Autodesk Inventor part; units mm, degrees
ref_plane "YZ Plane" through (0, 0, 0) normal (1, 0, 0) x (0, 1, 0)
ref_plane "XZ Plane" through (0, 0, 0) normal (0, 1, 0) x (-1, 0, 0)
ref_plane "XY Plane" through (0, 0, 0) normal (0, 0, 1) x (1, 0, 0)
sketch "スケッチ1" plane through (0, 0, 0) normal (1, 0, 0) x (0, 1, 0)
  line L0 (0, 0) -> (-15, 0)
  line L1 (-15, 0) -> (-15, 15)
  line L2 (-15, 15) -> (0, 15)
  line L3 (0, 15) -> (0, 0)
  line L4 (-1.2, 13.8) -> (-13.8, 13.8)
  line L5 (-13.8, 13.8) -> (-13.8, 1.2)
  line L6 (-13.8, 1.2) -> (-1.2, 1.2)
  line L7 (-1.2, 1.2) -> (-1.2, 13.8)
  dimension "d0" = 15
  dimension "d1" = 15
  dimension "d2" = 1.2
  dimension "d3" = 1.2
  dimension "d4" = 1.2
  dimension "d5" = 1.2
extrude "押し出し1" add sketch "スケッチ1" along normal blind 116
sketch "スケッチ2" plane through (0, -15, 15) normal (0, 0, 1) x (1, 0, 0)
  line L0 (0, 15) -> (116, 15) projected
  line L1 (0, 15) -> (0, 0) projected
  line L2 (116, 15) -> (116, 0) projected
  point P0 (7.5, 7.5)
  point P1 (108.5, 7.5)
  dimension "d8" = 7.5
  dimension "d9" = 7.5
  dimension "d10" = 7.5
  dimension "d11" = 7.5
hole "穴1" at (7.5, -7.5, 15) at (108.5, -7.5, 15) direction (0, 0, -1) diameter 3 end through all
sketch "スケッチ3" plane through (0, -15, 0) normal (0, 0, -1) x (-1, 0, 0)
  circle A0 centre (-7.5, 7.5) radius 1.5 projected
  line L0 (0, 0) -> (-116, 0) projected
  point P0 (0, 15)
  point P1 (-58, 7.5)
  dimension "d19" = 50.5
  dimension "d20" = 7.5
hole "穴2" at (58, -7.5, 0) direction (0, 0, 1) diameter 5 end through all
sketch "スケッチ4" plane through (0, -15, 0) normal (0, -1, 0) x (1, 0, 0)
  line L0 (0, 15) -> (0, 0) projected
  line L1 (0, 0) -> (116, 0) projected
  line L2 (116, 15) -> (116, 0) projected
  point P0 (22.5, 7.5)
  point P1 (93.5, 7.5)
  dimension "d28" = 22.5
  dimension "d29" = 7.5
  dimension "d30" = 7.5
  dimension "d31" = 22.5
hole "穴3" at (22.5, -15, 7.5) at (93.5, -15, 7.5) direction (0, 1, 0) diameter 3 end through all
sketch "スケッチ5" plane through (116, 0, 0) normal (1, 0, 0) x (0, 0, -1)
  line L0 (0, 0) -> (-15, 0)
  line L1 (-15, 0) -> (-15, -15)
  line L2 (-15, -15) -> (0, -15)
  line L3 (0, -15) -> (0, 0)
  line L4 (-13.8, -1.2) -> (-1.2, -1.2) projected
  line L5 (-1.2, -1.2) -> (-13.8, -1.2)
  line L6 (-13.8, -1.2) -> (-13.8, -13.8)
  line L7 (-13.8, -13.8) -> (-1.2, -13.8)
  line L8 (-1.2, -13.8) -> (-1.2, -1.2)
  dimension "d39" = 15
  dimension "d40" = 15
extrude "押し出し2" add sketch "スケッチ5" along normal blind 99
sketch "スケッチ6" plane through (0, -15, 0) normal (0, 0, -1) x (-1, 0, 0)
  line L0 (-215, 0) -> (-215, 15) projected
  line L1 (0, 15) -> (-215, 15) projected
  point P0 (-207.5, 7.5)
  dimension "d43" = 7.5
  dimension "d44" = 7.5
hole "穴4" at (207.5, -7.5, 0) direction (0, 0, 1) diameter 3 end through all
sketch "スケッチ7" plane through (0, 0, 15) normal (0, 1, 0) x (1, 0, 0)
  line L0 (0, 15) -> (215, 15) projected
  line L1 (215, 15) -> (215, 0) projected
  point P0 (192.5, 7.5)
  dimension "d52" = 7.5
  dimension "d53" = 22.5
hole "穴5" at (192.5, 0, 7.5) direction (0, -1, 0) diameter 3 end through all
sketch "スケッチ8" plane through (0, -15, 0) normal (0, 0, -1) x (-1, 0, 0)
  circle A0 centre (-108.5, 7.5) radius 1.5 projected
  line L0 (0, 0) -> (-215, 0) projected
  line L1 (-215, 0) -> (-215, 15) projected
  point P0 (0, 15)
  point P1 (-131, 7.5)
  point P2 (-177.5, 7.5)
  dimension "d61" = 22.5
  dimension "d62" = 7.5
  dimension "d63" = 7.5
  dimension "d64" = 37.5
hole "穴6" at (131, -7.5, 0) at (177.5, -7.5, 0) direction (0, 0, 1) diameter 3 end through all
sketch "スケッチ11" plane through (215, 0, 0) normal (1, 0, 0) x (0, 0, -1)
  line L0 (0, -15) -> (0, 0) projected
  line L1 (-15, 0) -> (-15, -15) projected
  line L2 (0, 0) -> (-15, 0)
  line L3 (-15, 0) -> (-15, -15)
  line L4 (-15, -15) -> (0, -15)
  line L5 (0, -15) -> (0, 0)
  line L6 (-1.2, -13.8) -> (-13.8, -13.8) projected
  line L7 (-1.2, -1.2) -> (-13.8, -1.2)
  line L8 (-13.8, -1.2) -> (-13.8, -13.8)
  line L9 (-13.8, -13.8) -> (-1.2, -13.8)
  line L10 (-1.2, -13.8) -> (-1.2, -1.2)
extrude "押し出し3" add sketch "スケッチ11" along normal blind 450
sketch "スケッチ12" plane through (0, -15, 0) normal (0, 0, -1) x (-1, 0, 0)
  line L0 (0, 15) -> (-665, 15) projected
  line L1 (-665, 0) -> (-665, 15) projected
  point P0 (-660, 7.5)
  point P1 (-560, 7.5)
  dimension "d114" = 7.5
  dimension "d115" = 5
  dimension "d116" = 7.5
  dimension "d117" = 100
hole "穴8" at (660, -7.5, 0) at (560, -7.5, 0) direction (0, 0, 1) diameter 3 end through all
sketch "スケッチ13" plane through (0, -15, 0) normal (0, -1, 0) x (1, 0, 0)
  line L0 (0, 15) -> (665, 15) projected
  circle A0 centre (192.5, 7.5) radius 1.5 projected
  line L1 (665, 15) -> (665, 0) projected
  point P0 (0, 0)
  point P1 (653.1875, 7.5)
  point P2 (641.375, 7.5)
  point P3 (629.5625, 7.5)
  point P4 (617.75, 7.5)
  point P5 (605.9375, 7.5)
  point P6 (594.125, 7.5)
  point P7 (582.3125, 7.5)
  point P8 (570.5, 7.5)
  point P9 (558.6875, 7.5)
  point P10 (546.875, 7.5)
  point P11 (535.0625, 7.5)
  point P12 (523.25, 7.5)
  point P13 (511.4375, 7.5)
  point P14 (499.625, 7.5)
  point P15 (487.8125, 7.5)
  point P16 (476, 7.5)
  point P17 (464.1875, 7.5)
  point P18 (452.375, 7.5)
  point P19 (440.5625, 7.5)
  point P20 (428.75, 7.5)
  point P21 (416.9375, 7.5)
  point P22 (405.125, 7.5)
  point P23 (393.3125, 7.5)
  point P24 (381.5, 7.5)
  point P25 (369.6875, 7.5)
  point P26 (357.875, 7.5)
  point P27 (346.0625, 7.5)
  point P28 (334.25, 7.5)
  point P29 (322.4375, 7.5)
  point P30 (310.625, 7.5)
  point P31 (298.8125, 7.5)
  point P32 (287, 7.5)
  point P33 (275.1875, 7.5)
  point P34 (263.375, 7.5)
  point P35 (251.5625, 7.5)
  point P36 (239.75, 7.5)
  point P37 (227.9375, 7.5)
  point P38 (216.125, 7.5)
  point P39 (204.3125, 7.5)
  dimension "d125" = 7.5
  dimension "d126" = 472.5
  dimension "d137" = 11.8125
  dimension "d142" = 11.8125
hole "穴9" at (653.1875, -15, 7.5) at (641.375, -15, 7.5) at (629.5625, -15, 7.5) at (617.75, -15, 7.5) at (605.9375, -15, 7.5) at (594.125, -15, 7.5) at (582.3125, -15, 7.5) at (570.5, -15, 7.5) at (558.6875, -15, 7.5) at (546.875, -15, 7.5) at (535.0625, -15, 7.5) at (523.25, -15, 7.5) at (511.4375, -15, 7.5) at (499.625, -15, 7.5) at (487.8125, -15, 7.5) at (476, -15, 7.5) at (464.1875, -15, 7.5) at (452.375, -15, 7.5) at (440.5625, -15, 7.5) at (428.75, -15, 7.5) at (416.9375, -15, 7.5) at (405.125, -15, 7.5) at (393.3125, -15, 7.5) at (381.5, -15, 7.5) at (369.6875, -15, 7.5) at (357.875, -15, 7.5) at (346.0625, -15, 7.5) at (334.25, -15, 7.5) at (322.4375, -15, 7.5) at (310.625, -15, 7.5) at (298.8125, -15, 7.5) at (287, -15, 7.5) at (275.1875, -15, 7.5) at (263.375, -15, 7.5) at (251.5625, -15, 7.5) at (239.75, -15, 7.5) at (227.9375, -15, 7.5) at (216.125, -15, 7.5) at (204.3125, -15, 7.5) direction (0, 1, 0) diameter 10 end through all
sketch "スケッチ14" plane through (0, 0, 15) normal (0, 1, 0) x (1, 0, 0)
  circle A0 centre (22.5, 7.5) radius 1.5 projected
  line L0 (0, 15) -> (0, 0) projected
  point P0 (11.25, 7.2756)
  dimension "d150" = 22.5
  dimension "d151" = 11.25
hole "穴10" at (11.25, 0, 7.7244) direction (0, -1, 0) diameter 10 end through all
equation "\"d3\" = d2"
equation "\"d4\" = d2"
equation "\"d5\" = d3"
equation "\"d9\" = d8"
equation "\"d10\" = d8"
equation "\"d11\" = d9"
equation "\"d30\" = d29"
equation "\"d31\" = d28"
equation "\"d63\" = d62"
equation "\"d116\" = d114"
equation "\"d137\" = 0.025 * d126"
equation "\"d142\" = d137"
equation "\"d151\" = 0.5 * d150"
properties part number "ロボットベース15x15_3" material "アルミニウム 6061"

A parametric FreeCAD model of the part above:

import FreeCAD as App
import Part
import Sketcher

V = App.Vector
Q = App.Units.Quantity

doc = App.newDocument("Part")
body = doc.addObject("PartDesign::Body", "Body")

# Sketch on YZ plane
sketch1 = doc.addObject("Sketcher::SketchObject", "Sketch")
body.addObject(sketch1)
sketch1.AttachmentSupport = (doc.YZ_Plane, [""])
sketch1.MapMode = "FlatFace"
sketch1.addGeometry([
    Part.LineSegment(V(-15, 0, 0), V(0, 0, 0)),  # 0
    Part.LineSegment(V(0, 0, 0), V(0, 15, 0)),  # 1
    Part.LineSegment(V(0, 15, 0), V(-15, 15, 0)),  # 2
    Part.LineSegment(V(-15, 15, 0), V(-15, 0, 0)),  # 3
    Part.LineSegment(V(-14, 14, 0), V(-1, 14, 0)),  # 4
    Part.LineSegment(V(-1, 14, 0), V(-1, 1, 0)),  # 5
    Part.LineSegment(V(-1, 1, 0), V(-14, 1, 0)),  # 6
    Part.LineSegment(V(-14, 1, 0), V(-14, 14, 0)),  # 7
], False)
sketch1.addConstraint([
    Sketcher.Constraint("Coincident", 0, 2, 1, 1),
    Sketcher.Constraint("Coincident", 1, 2, 2, 1),
    Sketcher.Constraint("Coincident", 2, 2, 3, 1),
    Sketcher.Constraint("Coincident", 3, 2, 0, 1),
    Sketcher.Constraint("Coincident", 4, 2, 5, 1),
    Sketcher.Constraint("Coincident", 5, 2, 6, 1),
    Sketcher.Constraint("Coincident", 6, 2, 7, 1),
    Sketcher.Constraint("Coincident", 7, 2, 4, 1),
    Sketcher.Constraint("Horizontal", 0),
    Sketcher.Constraint("Vertical", 1),
    Sketcher.Constraint("Horizontal", 2),
    Sketcher.Constraint("Vertical", 3),
    Sketcher.Constraint("Horizontal", 4),
    Sketcher.Constraint("Vertical", 5),
    Sketcher.Constraint("Horizontal", 6),
    Sketcher.Constraint("Vertical", 7),
    Sketcher.Constraint("Coincident", 0, 2, -1, 1),
    Sketcher.Constraint("Equal", 2, 1),
    Sketcher.Constraint("Equal", 6, 5),
    Sketcher.Constraint("DistanceX", 0, 1, 0, 2, Q("15 mm")),
    Sketcher.Constraint("DistanceX", 4, 2, -1, 1, Q("1.2 mm")),
    Sketcher.Constraint("DistanceY", -1, 1, 5, 2, Q("1.2 mm")),
    Sketcher.Constraint("DistanceY", 4, 2, 1, 2, Q("1.2 mm")),
])
pad1 = doc.addObject("PartDesign::Pad", "Pad")
body.addObject(pad1)
pad1.Profile = sketch1
pad1.Length = 116

# Sketch on XY plane
sketch2 = doc.addObject("Sketcher::SketchObject", "Sketch001")
body.addObject(sketch2)
sketch2.AttachmentSupport = (doc.XY_Plane, [""])
sketch2.MapMode = "FlatFace"
sketch2.AttachmentOffset = App.Placement(V(0, 0, 15), App.Rotation())
sketch2.addGeometry([
    Part.Circle(V(7.5, -7.5, 0), V(0, 0, 1), 1.5),
    Part.Circle(V(108.5, -7.5, 0), V(0, 0, 1), 1.5),
], False)
sketch2.addConstraint([
    Sketcher.Constraint("Equal", 0, 1),
    Sketcher.Constraint("Horizontal", 0, 3, 1, 3),
    Sketcher.Constraint("Diameter", 0, Q("3 mm")),
    Sketcher.Constraint("DistanceX", 0, 3, 1, 3, Q("101 mm")),
    Sketcher.Constraint("DistanceX", -1, 1, 0, 3, Q("7.5 mm")),
    Sketcher.Constraint("DistanceY", 0, 3, -1, 1, Q("7.5 mm")),
])
doc.recompute()
hole = doc.addObject("PartDesign::Hole", "Hole")
body.addObject(hole)
hole.Profile = sketch2
hole.ThreadType = "None"
hole.Diameter = 3
hole.DepthType = "ThroughAll"

# Sketch on XY plane
sketch3 = doc.addObject("Sketcher::SketchObject", "Sketch002")
body.addObject(sketch3)
sketch3.AttachmentSupport = (doc.XY_Plane, [""])
sketch3.MapMode = "FlatFace"
sketch3.addGeometry(Part.Circle(V(58, -7.5, 0), V(0, 0, 1), 2.5), False)
sketch3.addConstraint([
    Sketcher.Constraint("Diameter", 0, Q("5 mm")),
    Sketcher.Constraint("DistanceX", -1, 1, 0, 3, Q("58 mm")),
    Sketcher.Constraint("DistanceY", 0, 3, -1, 1, Q("7.5 mm")),
])
doc.recompute()
hole2 = doc.addObject("PartDesign::Hole", "Hole001")
body.addObject(hole2)
hole2.Profile = sketch3
hole2.ThreadType = "None"
hole2.Diameter = 5
hole2.DepthType = "ThroughAll"
hole2.Reversed = True

# Sketch on XZ plane
sketch4 = doc.addObject("Sketcher::SketchObject", "Sketch003")
body.addObject(sketch4)
sketch4.AttachmentSupport = (doc.XZ_Plane, [""])
sketch4.MapMode = "FlatFace"
sketch4.AttachmentOffset = App.Placement(V(0, 0, 15), App.Rotation())
sketch4.addGeometry([
    Part.Circle(V(22.5, 7.5, 0), V(0, 0, 1), 1.5),
    Part.Circle(V(93.5, 7.5, 0), V(0, 0, 1), 1.5),
], False)
sketch4.addConstraint([
    Sketcher.Constraint("Equal", 0, 1),
    Sketcher.Constraint("Horizontal", 0, 3, 1, 3),
    Sketcher.Constraint("Diameter", 0, Q("3 mm")),
    Sketcher.Constraint("DistanceX", 0, 3, 1, 3, Q("71 mm")),
    Sketcher.Constraint("DistanceX", -1, 1, 0, 3, Q("22.5 mm")),
    Sketcher.Constraint("DistanceY", -1, 1, 0, 3, Q("7.5 mm")),
])
doc.recompute()
hole3 = doc.addObject("PartDesign::Hole", "Hole002")
body.addObject(hole3)
hole3.Profile = sketch4
hole3.ThreadType = "None"
hole3.Diameter = 3
hole3.DepthType = "ThroughAll"

# Sketch on YZ plane
sketch5 = doc.addObject("Sketcher::SketchObject", "Sketch004")
body.addObject(sketch5)
sketch5.AttachmentSupport = (doc.YZ_Plane, [""])
sketch5.MapMode = "FlatFace"
sketch5.AttachmentOffset = App.Placement(V(0, 0, 116), App.Rotation())
sketch5.addGeometry([
    Part.LineSegment(V(-15, 0, 0), V(0, 0, 0)),  # 0
    Part.LineSegment(V(0, 0, 0), V(0, 15, 0)),  # 1
    Part.LineSegment(V(0, 15, 0), V(-15, 15, 0)),  # 2
    Part.LineSegment(V(-15, 15, 0), V(-15, 0, 0)),  # 3
    Part.LineSegment(V(-14, 14, 0), V(-1, 14, 0)),  # 4
    Part.LineSegment(V(-1, 14, 0), V(-1, 1, 0)),  # 5
    Part.LineSegment(V(-1, 1, 0), V(-14, 1, 0)),  # 6
    Part.LineSegment(V(-14, 1, 0), V(-14, 14, 0)),  # 7
], False)
sketch5.addConstraint([
    Sketcher.Constraint("Coincident", 0, 2, 1, 1),
    Sketcher.Constraint("Coincident", 1, 2, 2, 1),
    Sketcher.Constraint("Coincident", 2, 2, 3, 1),
    Sketcher.Constraint("Coincident", 3, 2, 0, 1),
    Sketcher.Constraint("Coincident", 4, 2, 5, 1),
    Sketcher.Constraint("Coincident", 5, 2, 6, 1),
    Sketcher.Constraint("Coincident", 6, 2, 7, 1),
    Sketcher.Constraint("Coincident", 7, 2, 4, 1),
    Sketcher.Constraint("Horizontal", 0),
    Sketcher.Constraint("Vertical", 1),
    Sketcher.Constraint("Horizontal", 2),
    Sketcher.Constraint("Vertical", 3),
    Sketcher.Constraint("Horizontal", 4),
    Sketcher.Constraint("Vertical", 5),
    Sketcher.Constraint("Horizontal", 6),
    Sketcher.Constraint("Vertical", 7),
    Sketcher.Constraint("Coincident", 0, 2, -1, 1),
    Sketcher.Constraint("Equal", 2, 1),
    Sketcher.Constraint("Equal", 6, 5),
    Sketcher.Constraint("DistanceX", 0, 1, 0, 2, Q("15 mm")),
    Sketcher.Constraint("DistanceX", 4, 1, 4, 2, Q("12.6 mm")),
    Sketcher.Constraint("DistanceX", 4, 2, -1, 1, Q("1.2 mm")),
    Sketcher.Constraint("DistanceY", -1, 1, 4, 2, Q("13.8 mm")),
])
pad2 = doc.addObject("PartDesign::Pad", "Pad001")
body.addObject(pad2)
pad2.Profile = sketch5
pad2.Length = 99

# Sketch on XY plane
sketch6 = doc.addObject("Sketcher::SketchObject", "Sketch005")
body.addObject(sketch6)
sketch6.AttachmentSupport = (doc.XY_Plane, [""])
sketch6.MapMode = "FlatFace"
sketch6.addGeometry(Part.Circle(V(207.5, -7.5, 0), V(0, 0, 1), 1.5), False)
sketch6.addConstraint([
    Sketcher.Constraint("Diameter", 0, Q("3 mm")),
    Sketcher.Constraint("DistanceX", -1, 1, 0, 3, Q("207.5 mm")),
    Sketcher.Constraint("DistanceY", 0, 3, -1, 1, Q("7.5 mm")),
])
doc.recompute()
hole4 = doc.addObject("PartDesign::Hole", "Hole003")
body.addObject(hole4)
hole4.Profile = sketch6
hole4.ThreadType = "None"
hole4.Diameter = 3
hole4.DepthType = "ThroughAll"
hole4.Reversed = True

# Sketch on XZ plane
sketch7 = doc.addObject("Sketcher::SketchObject", "Sketch006")
body.addObject(sketch7)
sketch7.AttachmentSupport = (doc.XZ_Plane, [""])
sketch7.MapMode = "FlatFace"
sketch7.addGeometry(Part.Circle(V(192.5, 7.5, 0), V(0, 0, 1), 1.5), False)
sketch7.addConstraint([
    Sketcher.Constraint("Diameter", 0, Q("3 mm")),
    Sketcher.Constraint("DistanceX", -1, 1, 0, 3, Q("192.5 mm")),
    Sketcher.Constraint("DistanceY", -1, 1, 0, 3, Q("7.5 mm")),
])
doc.recompute()
hole5 = doc.addObject("PartDesign::Hole", "Hole004")
body.addObject(hole5)
hole5.Profile = sketch7
hole5.ThreadType = "None"
hole5.Diameter = 3
hole5.DepthType = "ThroughAll"
hole5.Reversed = True

# Sketch on XY plane
sketch8 = doc.addObject("Sketcher::SketchObject", "Sketch007")
body.addObject(sketch8)
sketch8.AttachmentSupport = (doc.XY_Plane, [""])
sketch8.MapMode = "FlatFace"
sketch8.addGeometry([
    Part.Circle(V(131, -7.5, 0), V(0, 0, 1), 1.5),
    Part.Circle(V(177.5, -7.5, 0), V(0, 0, 1), 1.5),
], False)
sketch8.addConstraint([
    Sketcher.Constraint("Equal", 0, 1),
    Sketcher.Constraint("Horizontal", 0, 3, 1, 3),
    Sketcher.Constraint("Diameter", 0, Q("3 mm")),
    Sketcher.Constraint("DistanceX", -1, 1, 0, 3, Q("131 mm")),
    Sketcher.Constraint("DistanceY", 0, 3, -1, 1, Q("7.5 mm")),
    Sketcher.Constraint("DistanceX", -1, 1, 1, 3, Q("177.5 mm")),
])
doc.recompute()
hole6 = doc.addObject("PartDesign::Hole", "Hole005")
body.addObject(hole6)
hole6.Profile = sketch8
hole6.ThreadType = "None"
hole6.Diameter = 3
hole6.DepthType = "ThroughAll"
hole6.Reversed = True

# Sketch on YZ plane
sketch9 = doc.addObject("Sketcher::SketchObject", "Sketch008")
body.addObject(sketch9)
sketch9.AttachmentSupport = (doc.YZ_Plane, [""])
sketch9.MapMode = "FlatFace"
sketch9.AttachmentOffset = App.Placement(V(0, 0, 215), App.Rotation())
sketch9.addGeometry([
    Part.LineSegment(V(-15, 15, 0), V(-15, 0, 0)),  # 0
    Part.LineSegment(V(-15, 0, 0), V(0, 0, 0)),  # 1
    Part.LineSegment(V(0, 0, 0), V(0, 15, 0)),  # 2
    Part.LineSegment(V(0, 15, 0), V(-15, 15, 0)),  # 3
    Part.LineSegment(V(-1, 1, 0), V(-14, 1, 0)),  # 4
    Part.LineSegment(V(-14, 1, 0), V(-14, 14, 0)),  # 5
    Part.LineSegment(V(-14, 14, 0), V(-1, 14, 0)),  # 6
    Part.LineSegment(V(-1, 14, 0), V(-1, 1, 0)),  # 7
], False)
sketch9.addConstraint([
    Sketcher.Constraint("Coincident", 0, 2, 1, 1),
    Sketcher.Constraint("Coincident", 1, 2, 2, 1),
    Sketcher.Constraint("Coincident", 2, 2, 3, 1),
    Sketcher.Constraint("Coincident", 3, 2, 0, 1),
    Sketcher.Constraint("Coincident", 4, 2, 5, 1),
    Sketcher.Constraint("Coincident", 5, 2, 6, 1),
    Sketcher.Constraint("Coincident", 6, 2, 7, 1),
    Sketcher.Constraint("Coincident", 7, 2, 4, 1),
    Sketcher.Constraint("Vertical", 0),
    Sketcher.Constraint("Horizontal", 1),
    Sketcher.Constraint("Vertical", 2),
    Sketcher.Constraint("Horizontal", 3),
    Sketcher.Constraint("Horizontal", 4),
    Sketcher.Constraint("Vertical", 5),
    Sketcher.Constraint("Horizontal", 6),
    Sketcher.Constraint("Vertical", 7),
    Sketcher.Constraint("Coincident", 1, 2, -1, 1),
    Sketcher.Constraint("Equal", 3, 0),
    Sketcher.Constraint("Equal", 6, 5),
    Sketcher.Constraint("DistanceX", 1, 1, 1, 2, Q("15 mm")),
    Sketcher.Constraint("DistanceX", 4, 2, 4, 1, Q("12.6 mm")),
    Sketcher.Constraint("DistanceX", 4, 2, -1, 1, Q("13.8 mm")),
    Sketcher.Constraint("DistanceY", -1, 1, 4, 2, Q("1.2 mm")),
])
pad3 = doc.addObject("PartDesign::Pad", "Pad002")
body.addObject(pad3)
pad3.Profile = sketch9
pad3.Length = 450

# Sketch on XY plane
sketch10 = doc.addObject("Sketcher::SketchObject", "Sketch009")
body.addObject(sketch10)
sketch10.AttachmentSupport = (doc.XY_Plane, [""])
sketch10.MapMode = "FlatFace"
sketch10.addGeometry([
    Part.Circle(V(660, -7.5, 0), V(0, 0, 1), 1.5),
    Part.Circle(V(560, -7.5, 0), V(0, 0, 1), 1.5),
], False)
sketch10.addConstraint([
    Sketcher.Constraint("Equal", 0, 1),
    Sketcher.Constraint("Horizontal", 0, 3, 1, 3),
    Sketcher.Constraint("Diameter", 0, Q("3 mm")),
    Sketcher.Constraint("DistanceX", -1, 1, 0, 3, Q("660 mm")),
    Sketcher.Constraint("DistanceX", -1, 1, 1, 3, Q("560 mm")),
    Sketcher.Constraint("DistanceY", 0, 3, -1, 1, Q("7.5 mm")),
])
doc.recompute()
hole7 = doc.addObject("PartDesign::Hole", "Hole006")
body.addObject(hole7)
hole7.Profile = sketch10
hole7.ThreadType = "None"
hole7.Diameter = 3
hole7.DepthType = "ThroughAll"
hole7.Reversed = True

# Sketch on XZ plane
sketch11 = doc.addObject("Sketcher::SketchObject", "Sketch010")
body.addObject(sketch11)
sketch11.AttachmentSupport = (doc.XZ_Plane, [""])
sketch11.MapMode = "FlatFace"
sketch11.AttachmentOffset = App.Placement(V(0, 0, 15), App.Rotation())
sketch11.addGeometry([
    Part.Circle(V(653, 8, 0), V(0, 0, 1), 5),  # 0
    Part.Circle(V(641, 8, 0), V(0, 0, 1), 5),  # 1
    Part.Circle(V(630, 8, 0), V(0, 0, 1), 5),  # 2
    Part.Circle(V(618, 8, 0), V(0, 0, 1), 5),  # 3
    Part.Circle(V(606, 8, 0), V(0, 0, 1), 5),  # 4
    Part.Circle(V(594, 8, 0), V(0, 0, 1), 5),  # 5
    Part.Circle(V(582, 8, 0), V(0, 0, 1), 5),  # 6
    Part.Circle(V(570, 8, 0), V(0, 0, 1), 5),  # 7
    Part.Circle(V(559, 8, 0), V(0, 0, 1), 5),  # 8
    Part.Circle(V(547, 8, 0), V(0, 0, 1), 5),  # 9
    Part.Circle(V(535, 8, 0), V(0, 0, 1), 5),  # 10
    Part.Circle(V(523, 8, 0), V(0, 0, 1), 5),  # 11
    Part.Circle(V(511, 8, 0), V(0, 0, 1), 5),  # 12
    Part.Circle(V(500, 8, 0), V(0, 0, 1), 5),  # 13
    Part.Circle(V(488, 8, 0), V(0, 0, 1), 5),  # 14
    Part.Circle(V(476, 8, 0), V(0, 0, 1), 5),  # 15
    Part.Circle(V(464, 8, 0), V(0, 0, 1), 5),  # 16
    Part.Circle(V(452, 8, 0), V(0, 0, 1), 5),  # 17
    Part.Circle(V(441, 8, 0), V(0, 0, 1), 5),  # 18
    Part.Circle(V(429, 8, 0), V(0, 0, 1), 5),  # 19
    Part.Circle(V(417, 8, 0), V(0, 0, 1), 5),  # 20
    Part.Circle(V(405, 8, 0), V(0, 0, 1), 5),  # 21
    Part.Circle(V(393, 8, 0), V(0, 0, 1), 5),  # 22
    Part.Circle(V(382, 8, 0), V(0, 0, 1), 5),  # 23
    Part.Circle(V(370, 8, 0), V(0, 0, 1), 5),  # 24
    Part.Circle(V(358, 8, 0), V(0, 0, 1), 5),  # 25
    Part.Circle(V(346, 8, 0), V(0, 0, 1), 5),  # 26
    Part.Circle(V(334, 8, 0), V(0, 0, 1), 5),  # 27
    Part.Circle(V(322, 8, 0), V(0, 0, 1), 5),  # 28
    Part.Circle(V(311, 8, 0), V(0, 0, 1), 5),  # 29
    Part.Circle(V(299, 8, 0), V(0, 0, 1), 5),  # 30
    Part.Circle(V(287, 8, 0), V(0, 0, 1), 5),  # 31
    Part.Circle(V(275, 8, 0), V(0, 0, 1), 5),  # 32
    Part.Circle(V(263, 8, 0), V(0, 0, 1), 5),  # 33
    Part.Circle(V(252, 8, 0), V(0, 0, 1), 5),  # 34
    Part.Circle(V(240, 8, 0), V(0, 0, 1), 5),  # 35
    Part.Circle(V(228, 8, 0), V(0, 0, 1), 5),  # 36
    Part.Circle(V(216, 8, 0), V(0, 0, 1), 5),  # 37
    Part.Circle(V(204, 8, 0), V(0, 0, 1), 5),  # 38
], False)
sketch11.addConstraint([
    Sketcher.Constraint("Equal", 0, 1),
    Sketcher.Constraint("Equal", 1, 2),
    Sketcher.Constraint("Equal", 2, 3),
    Sketcher.Constraint("Equal", 3, 4),
    Sketcher.Constraint("Equal", 4, 5),
    Sketcher.Constraint("Equal", 5, 6),
    Sketcher.Constraint("Equal", 6, 7),
    Sketcher.Constraint("Equal", 7, 8),
    Sketcher.Constraint("Equal", 8, 9),
    Sketcher.Constraint("Equal", 9, 10),
    Sketcher.Constraint("Equal", 10, 11),
    Sketcher.Constraint("Equal", 11, 12),
    Sketcher.Constraint("Equal", 12, 13),
    Sketcher.Constraint("Equal", 13, 14),
    Sketcher.Constraint("Equal", 14, 15),
    Sketcher.Constraint("Equal", 15, 16),
    Sketcher.Constraint("Equal", 16, 17),
    Sketcher.Constraint("Equal", 17, 18),
    Sketcher.Constraint("Equal", 18, 19),
    Sketcher.Constraint("Equal", 19, 20),
    Sketcher.Constraint("Equal", 20, 21),
    Sketcher.Constraint("Equal", 21, 22),
    Sketcher.Constraint("Equal", 22, 23),
    Sketcher.Constraint("Equal", 23, 24),
    Sketcher.Constraint("Equal", 24, 25),
    Sketcher.Constraint("Equal", 25, 26),
    Sketcher.Constraint("Equal", 26, 27),
    Sketcher.Constraint("Equal", 27, 28),
    Sketcher.Constraint("Equal", 28, 29),
    Sketcher.Constraint("Equal", 29, 30),
    Sketcher.Constraint("Equal", 30, 31),
    Sketcher.Constraint("Equal", 31, 32),
    Sketcher.Constraint("Equal", 32, 33),
    Sketcher.Constraint("Equal", 33, 34),
    Sketcher.Constraint("Equal", 34, 35),
    Sketcher.Constraint("Equal", 35, 36),
    Sketcher.Constraint("Equal", 36, 37),
    Sketcher.Constraint("Equal", 37, 38),
    Sketcher.Constraint("Horizontal", 0, 3, 1, 3),
    Sketcher.Constraint("Horizontal", 1, 3, 2, 3),
    Sketcher.Constraint("Horizontal", 2, 3, 3, 3),
    Sketcher.Constraint("Horizontal", 3, 3, 4, 3),
    Sketcher.Constraint("Horizontal", 4, 3, 5, 3),
    Sketcher.Constraint("Horizontal", 5, 3, 6, 3),
    Sketcher.Constraint("Horizontal", 6, 3, 7, 3),
    Sketcher.Constraint("Horizontal", 7, 3, 8, 3),
    Sketcher.Constraint("Horizontal", 8, 3, 9, 3),
    Sketcher.Constraint("Horizontal", 9, 3, 10, 3),
    Sketcher.Constraint("Horizontal", 10, 3, 11, 3),
    Sketcher.Constraint("Horizontal", 11, 3, 12, 3),
    Sketcher.Constraint("Horizontal", 12, 3, 13, 3),
    Sketcher.Constraint("Horizontal", 13, 3, 14, 3),
    Sketcher.Constraint("Horizontal", 14, 3, 15, 3),
    Sketcher.Constraint("Horizontal", 15, 3, 16, 3),
    Sketcher.Constraint("Horizontal", 16, 3, 17, 3),
    Sketcher.Constraint("Horizontal", 17, 3, 18, 3),
    Sketcher.Constraint("Horizontal", 18, 3, 19, 3),
    Sketcher.Constraint("Horizontal", 19, 3, 20, 3),
    Sketcher.Constraint("Horizontal", 20, 3, 21, 3),
    Sketcher.Constraint("Horizontal", 21, 3, 22, 3),
    Sketcher.Constraint("Horizontal", 22, 3, 23, 3),
    Sketcher.Constraint("Horizontal", 23, 3, 24, 3),
    Sketcher.Constraint("Horizontal", 24, 3, 25, 3),
    Sketcher.Constraint("Horizontal", 25, 3, 26, 3),
    Sketcher.Constraint("Horizontal", 26, 3, 27, 3),
    Sketcher.Constraint("Horizontal", 27, 3, 28, 3),
    Sketcher.Constraint("Horizontal", 28, 3, 29, 3),
    Sketcher.Constraint("Horizontal", 29, 3, 30, 3),
    Sketcher.Constraint("Horizontal", 30, 3, 31, 3),
    Sketcher.Constraint("Horizontal", 31, 3, 32, 3),
    Sketcher.Constraint("Horizontal", 32, 3, 33, 3),
    Sketcher.Constraint("Horizontal", 33, 3, 34, 3),
    Sketcher.Constraint("Horizontal", 34, 3, 35, 3),
    Sketcher.Constraint("Horizontal", 35, 3, 36, 3),
    Sketcher.Constraint("Horizontal", 36, 3, 37, 3),
    Sketcher.Constraint("Horizontal", 37, 3, 38, 3),
    Sketcher.Constraint("Diameter", 0, Q("10 mm")),
    Sketcher.Constraint("DistanceX", -1, 1, 15, 3, Q("476 mm")),
    Sketcher.Constraint("DistanceX", -1, 1, 31, 3, Q("287 mm")),
    Sketcher.Constraint("DistanceY", -1, 1, 0, 3, Q("7.5 mm")),
    Sketcher.Constraint("DistanceX", -1, 1, 7, 3, Q("570.5 mm")),
    Sketcher.Constraint("DistanceX", -1, 1, 23, 3, Q("381.5 mm")),
    Sketcher.Constraint("DistanceX", -1, 1, 3, 3, Q("617.75 mm")),
    Sketcher.Constraint("DistanceX", -1, 1, 11, 3, Q("523.25 mm")),
    Sketcher.Constraint("DistanceX", -1, 1, 19, 3, Q("428.75 mm")),
    Sketcher.Constraint("DistanceX", -1, 1, 27, 3, Q("334.25 mm")),
    Sketcher.Constraint("DistanceX", -1, 1, 35, 3, Q("239.75 mm")),
    Sketcher.Constraint("DistanceX", 4, 3, 0, 3, Q("47.25 mm")),
    Sketcher.Constraint("DistanceX", 5, 3, 1, 3, Q("47.25 mm")),
    Sketcher.Constraint("DistanceX", 6, 3, 2, 3, Q("47.25 mm")),
    Sketcher.Constraint("DistanceX", 8, 3, 4, 3, Q("47.25 mm")),
    Sketcher.Constraint("DistanceX", 9, 3, 5, 3, Q("47.25 mm")),
    Sketcher.Constraint("DistanceX", 10, 3, 6, 3, Q("47.25 mm")),
    Sketcher.Constraint("DistanceX", 12, 3, 8, 3, Q("47.25 mm")),
    Sketcher.Constraint("DistanceX", 13, 3, 9, 3, Q("47.25 mm")),
    Sketcher.Constraint("DistanceX", 14, 3, 10, 3, Q("47.25 mm")),
    Sketcher.Constraint("DistanceX", 16, 3, 12, 3, Q("47.25 mm")),
    Sketcher.Constraint("DistanceX", 17, 3, 13, 3, Q("47.25 mm")),
    Sketcher.Constraint("DistanceX", 18, 3, 14, 3, Q("47.25 mm")),
    Sketcher.Constraint("DistanceX", 20, 3, 16, 3, Q("47.25 mm")),
    Sketcher.Constraint("DistanceX", 21, 3, 17, 3, Q("47.25 mm")),
    Sketcher.Constraint("DistanceX", 22, 3, 18, 3, Q("47.25 mm")),
    Sketcher.Constraint("DistanceX", 24, 3, 20, 3, Q("47.25 mm")),
    Sketcher.Constraint("DistanceX", 25, 3, 21, 3, Q("47.25 mm")),
    Sketcher.Constraint("DistanceX", 26, 3, 22, 3, Q("47.25 mm")),
    Sketcher.Constraint("DistanceX", 28, 3, 24, 3, Q("47.25 mm")),
    Sketcher.Constraint("DistanceX", 29, 3, 25, 3, Q("47.25 mm")),
    Sketcher.Constraint("DistanceX", 30, 3, 26, 3, Q("47.25 mm")),
    Sketcher.Constraint("DistanceX", 32, 3, 28, 3, Q("47.25 mm")),
    Sketcher.Constraint("DistanceX", 33, 3, 29, 3, Q("47.25 mm")),
    Sketcher.Constraint("DistanceX", 34, 3, 30, 3, Q("47.25 mm")),
    Sketcher.Constraint("DistanceX", 36, 3, 32, 3, Q("47.25 mm")),
    Sketcher.Constraint("DistanceX", 37, 3, 33, 3, Q("47.25 mm")),
    Sketcher.Constraint("DistanceX", 38, 3, 34, 3, Q("47.25 mm")),
    Sketcher.Constraint("DistanceX", -1, 1, 1, 3, Q("641.375 mm")),
    Sketcher.Constraint("DistanceX", 2, 3, 0, 3, Q("23.625 mm")),
    Sketcher.Constraint("DistanceX", -1, 1, 0, 3, Q("653.1875 mm")),
])
doc.recompute()
hole8 = doc.addObject("PartDesign::Hole", "Hole007")
body.addObject(hole8)
hole8.Profile = sketch11
hole8.ThreadType = "None"
hole8.Diameter = 10
hole8.DepthType = "ThroughAll"

# Sketch on XZ plane
sketch12 = doc.addObject("Sketcher::SketchObject", "Sketch011")
body.addObject(sketch12)
sketch12.AttachmentSupport = (doc.XZ_Plane, [""])
sketch12.MapMode = "FlatFace"
sketch12.addGeometry(Part.Circle(V(11, 8, 0), V(0, 0, 1), 5), False)
sketch12.addConstraint([
    Sketcher.Constraint("Diameter", 0, Q("10 mm")),
    Sketcher.Constraint("DistanceX", -1, 1, 0, 3, Q("11.25 mm")),
    Sketcher.Constraint("DistanceY", -1, 1, 0, 3, Q("7.7244 mm")),
])
doc.recompute()
hole9 = doc.addObject("PartDesign::Hole", "Hole008")
body.addObject(hole9)
hole9.Profile = sketch12
hole9.ThreadType = "None"
hole9.Diameter = 10
hole9.DepthType = "ThroughAll"
hole9.Reversed = True

doc.recompute()
